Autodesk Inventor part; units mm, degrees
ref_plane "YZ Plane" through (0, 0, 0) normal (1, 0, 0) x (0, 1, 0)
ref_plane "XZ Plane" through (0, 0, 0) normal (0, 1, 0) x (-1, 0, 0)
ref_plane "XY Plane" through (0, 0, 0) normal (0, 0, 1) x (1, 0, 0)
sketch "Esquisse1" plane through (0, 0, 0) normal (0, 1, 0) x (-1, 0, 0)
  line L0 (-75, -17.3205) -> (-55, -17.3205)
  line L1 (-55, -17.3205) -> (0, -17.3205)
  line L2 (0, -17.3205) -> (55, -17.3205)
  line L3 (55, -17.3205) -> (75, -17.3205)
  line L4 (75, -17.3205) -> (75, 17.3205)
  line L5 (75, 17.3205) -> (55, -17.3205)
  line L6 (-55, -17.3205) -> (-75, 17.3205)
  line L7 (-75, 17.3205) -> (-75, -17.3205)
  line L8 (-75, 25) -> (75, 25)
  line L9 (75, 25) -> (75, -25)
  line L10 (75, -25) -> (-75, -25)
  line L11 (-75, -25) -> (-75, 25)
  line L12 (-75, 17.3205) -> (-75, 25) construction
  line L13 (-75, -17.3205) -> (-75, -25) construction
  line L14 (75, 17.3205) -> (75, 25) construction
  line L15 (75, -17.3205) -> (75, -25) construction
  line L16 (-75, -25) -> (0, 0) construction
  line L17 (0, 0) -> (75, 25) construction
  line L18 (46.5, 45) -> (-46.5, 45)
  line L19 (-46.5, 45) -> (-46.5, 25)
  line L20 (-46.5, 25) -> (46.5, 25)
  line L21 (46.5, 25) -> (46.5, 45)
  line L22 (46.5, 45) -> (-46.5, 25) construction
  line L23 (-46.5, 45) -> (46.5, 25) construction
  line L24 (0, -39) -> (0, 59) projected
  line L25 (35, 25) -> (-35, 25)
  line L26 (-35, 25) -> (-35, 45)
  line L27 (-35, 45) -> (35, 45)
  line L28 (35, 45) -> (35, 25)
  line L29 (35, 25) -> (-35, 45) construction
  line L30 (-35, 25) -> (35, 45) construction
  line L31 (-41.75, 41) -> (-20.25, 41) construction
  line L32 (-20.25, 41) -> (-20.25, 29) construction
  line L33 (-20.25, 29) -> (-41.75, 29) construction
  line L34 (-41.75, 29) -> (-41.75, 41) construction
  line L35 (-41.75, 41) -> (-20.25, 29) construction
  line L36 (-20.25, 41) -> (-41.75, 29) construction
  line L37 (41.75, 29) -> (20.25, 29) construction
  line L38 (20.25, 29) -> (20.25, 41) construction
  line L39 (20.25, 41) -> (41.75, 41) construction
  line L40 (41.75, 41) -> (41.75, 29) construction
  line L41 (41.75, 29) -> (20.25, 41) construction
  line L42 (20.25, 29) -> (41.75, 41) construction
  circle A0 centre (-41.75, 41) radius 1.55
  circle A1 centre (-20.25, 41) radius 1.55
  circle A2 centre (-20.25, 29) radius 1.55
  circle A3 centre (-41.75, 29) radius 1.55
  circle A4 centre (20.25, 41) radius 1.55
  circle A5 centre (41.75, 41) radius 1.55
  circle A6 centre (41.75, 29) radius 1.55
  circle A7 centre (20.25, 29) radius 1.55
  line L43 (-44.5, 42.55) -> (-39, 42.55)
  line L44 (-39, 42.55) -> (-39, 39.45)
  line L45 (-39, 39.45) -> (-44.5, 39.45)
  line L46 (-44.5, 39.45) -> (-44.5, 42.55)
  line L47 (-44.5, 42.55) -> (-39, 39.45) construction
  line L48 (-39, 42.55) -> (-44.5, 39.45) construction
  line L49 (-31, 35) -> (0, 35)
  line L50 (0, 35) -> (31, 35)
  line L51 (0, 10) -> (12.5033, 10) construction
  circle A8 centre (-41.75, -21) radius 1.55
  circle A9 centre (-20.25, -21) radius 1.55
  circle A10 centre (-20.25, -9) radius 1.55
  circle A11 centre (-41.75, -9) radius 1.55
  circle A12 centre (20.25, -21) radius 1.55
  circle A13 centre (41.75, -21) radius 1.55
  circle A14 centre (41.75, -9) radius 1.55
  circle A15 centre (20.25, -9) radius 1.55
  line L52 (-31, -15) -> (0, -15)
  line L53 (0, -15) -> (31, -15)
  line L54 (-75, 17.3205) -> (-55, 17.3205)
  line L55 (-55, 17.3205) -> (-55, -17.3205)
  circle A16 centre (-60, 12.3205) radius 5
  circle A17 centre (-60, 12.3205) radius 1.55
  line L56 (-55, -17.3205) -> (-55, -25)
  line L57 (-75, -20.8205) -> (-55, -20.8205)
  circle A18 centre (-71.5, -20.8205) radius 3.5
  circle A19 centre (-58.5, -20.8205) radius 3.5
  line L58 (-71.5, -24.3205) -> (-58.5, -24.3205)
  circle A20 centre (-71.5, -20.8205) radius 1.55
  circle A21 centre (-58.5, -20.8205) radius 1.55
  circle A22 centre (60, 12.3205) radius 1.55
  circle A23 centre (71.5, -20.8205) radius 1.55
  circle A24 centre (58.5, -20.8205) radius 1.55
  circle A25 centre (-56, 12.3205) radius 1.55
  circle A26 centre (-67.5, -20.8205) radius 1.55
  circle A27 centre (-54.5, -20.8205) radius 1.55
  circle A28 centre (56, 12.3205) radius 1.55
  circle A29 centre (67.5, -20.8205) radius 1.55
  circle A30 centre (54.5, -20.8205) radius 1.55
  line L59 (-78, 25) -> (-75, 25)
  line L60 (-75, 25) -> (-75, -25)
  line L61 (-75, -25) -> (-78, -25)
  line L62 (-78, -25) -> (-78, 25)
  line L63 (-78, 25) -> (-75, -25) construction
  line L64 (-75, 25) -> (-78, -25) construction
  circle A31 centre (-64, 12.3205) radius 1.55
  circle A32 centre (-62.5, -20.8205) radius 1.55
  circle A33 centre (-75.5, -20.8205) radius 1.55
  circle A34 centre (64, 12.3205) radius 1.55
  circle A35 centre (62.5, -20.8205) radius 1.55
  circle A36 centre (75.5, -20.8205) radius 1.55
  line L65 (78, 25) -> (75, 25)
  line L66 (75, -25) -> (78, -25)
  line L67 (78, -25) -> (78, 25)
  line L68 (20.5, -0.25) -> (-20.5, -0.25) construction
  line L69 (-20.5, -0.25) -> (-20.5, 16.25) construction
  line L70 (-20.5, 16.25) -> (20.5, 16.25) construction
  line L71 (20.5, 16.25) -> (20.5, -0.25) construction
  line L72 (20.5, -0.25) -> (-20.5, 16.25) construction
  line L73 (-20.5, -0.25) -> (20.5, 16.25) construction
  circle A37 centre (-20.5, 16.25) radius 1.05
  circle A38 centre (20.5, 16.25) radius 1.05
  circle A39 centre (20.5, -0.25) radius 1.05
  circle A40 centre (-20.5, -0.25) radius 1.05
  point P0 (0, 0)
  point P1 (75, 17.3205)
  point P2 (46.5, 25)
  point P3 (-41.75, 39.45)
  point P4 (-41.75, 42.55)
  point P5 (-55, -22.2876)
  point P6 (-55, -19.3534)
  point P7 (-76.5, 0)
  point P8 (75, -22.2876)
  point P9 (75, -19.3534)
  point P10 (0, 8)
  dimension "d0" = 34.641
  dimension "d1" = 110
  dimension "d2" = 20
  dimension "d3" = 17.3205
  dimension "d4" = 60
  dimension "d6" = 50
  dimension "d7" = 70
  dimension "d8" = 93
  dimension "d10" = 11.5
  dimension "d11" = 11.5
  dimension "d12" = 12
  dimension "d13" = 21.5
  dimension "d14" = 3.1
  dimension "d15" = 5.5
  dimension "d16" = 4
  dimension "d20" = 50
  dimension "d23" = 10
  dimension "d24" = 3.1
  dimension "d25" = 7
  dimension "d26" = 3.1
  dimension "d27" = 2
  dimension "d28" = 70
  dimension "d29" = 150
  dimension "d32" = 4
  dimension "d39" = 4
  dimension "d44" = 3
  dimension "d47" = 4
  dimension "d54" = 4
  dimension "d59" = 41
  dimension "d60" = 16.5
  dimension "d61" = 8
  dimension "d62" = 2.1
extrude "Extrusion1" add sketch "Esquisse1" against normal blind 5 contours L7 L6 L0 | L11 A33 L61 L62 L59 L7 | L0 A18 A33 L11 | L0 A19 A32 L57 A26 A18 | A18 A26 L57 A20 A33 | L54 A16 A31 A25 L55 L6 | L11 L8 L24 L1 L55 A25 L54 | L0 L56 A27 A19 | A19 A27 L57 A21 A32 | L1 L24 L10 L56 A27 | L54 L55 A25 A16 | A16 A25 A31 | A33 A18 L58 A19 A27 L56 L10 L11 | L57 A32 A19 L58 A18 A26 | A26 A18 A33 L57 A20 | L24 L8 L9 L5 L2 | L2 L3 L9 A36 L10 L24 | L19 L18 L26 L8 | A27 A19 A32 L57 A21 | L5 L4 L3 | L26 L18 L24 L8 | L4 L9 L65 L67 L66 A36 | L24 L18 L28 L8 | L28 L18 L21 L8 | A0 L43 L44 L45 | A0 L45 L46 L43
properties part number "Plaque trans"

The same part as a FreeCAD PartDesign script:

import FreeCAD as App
import Part
import Sketcher

V = App.Vector
Q = App.Units.Quantity

doc = App.newDocument("Part")
params = doc.addObject("Spreadsheet::Sheet", "Params")
for row, (alias, value) in enumerate([
    ("sketch1_diameter", "3.1 mm"),
    ("sketch1_diameter2", "2.1 mm"),
    ("sketch1_width", "93 mm"),
    ("sketch1_height", "50 mm"),
    ("sketch1_height2", "20 mm"),
    ("pad1_length", "5 mm"),
], start=1):
    params.set(f"A{row}", alias)
    params.set(f"B{row}", "=" + value)
    params.setAlias(f"B{row}", alias)

body = doc.addObject("PartDesign::Body", "Body")

sketch1 = doc.addObject("Sketcher::SketchObject", "Sketch")
body.addObject(sketch1)
sketch1.AttachmentSupport = (doc.XZ_Plane, [""])
sketch1.MapMode = "FlatFace"
sketch1.addGeometry([
    Part.LineSegment(V(78, -25, 0), V(-78, -25, 0)),
    Part.LineSegment(V(-78, -25, 0), V(-78, 25, 0)),
    Part.LineSegment(V(-78, 25, 0), V(-46.5, 25, 0)),
    Part.LineSegment(V(-46.5, 25, 0), V(-46.5, 45, 0)),
    Part.LineSegment(V(-46.5, 45, 0), V(46.5, 45, 0)),
    Part.LineSegment(V(46.5, 45, 0), V(46.5, 25, 0)),
    Part.LineSegment(V(46.5, 25, 0), V(78, 25, 0)),
    Part.LineSegment(V(78, 25, 0), V(78, -25, 0)),
    Part.Circle(V(75.5, -20.8205, 0), V(0, 0, 1), 1.55),
    Part.Circle(V(64, 12.3205, 0), V(0, 0, 1), 1.55),
    Part.Circle(V(56, 12.3205, 0), V(0, 0, 1), 1.55),
    Part.Circle(V(54.5, -20.8205, 0), V(0, 0, 1), 1.55),
    Part.Circle(V(62.5, -20.8205, 0), V(0, 0, 1), 1.55),
    Part.Circle(V(67.5, -20.8205, 0), V(0, 0, 1), 1.55),
    Part.Circle(V(20.5, 16.25, 0), V(0, 0, 1), 1.05),
    Part.Circle(V(20.25, -9, 0), V(0, 0, 1), 1.55),
    Part.Circle(V(20.5, -0.25, 0), V(0, 0, 1), 1.05),
    Part.Circle(V(41.75, -9, 0), V(0, 0, 1), 1.55),
    Part.Circle(V(60, 12.3205, 0), V(0, 0, 1), 1.55),
    Part.Circle(V(58.5, -20.8205, 0), V(0, 0, 1), 1.55),
    Part.Circle(V(20.25, -21, 0), V(0, 0, 1), 1.55),
    Part.Circle(V(41.75, -21, 0), V(0, 0, 1), 1.55),
    Part.Circle(V(71.5, -20.8205, 0), V(0, 0, 1), 1.55),
    Part.Circle(V(41.75, 29, 0), V(0, 0, 1), 1.55),
    Part.Circle(V(20.25, 29, 0), V(0, 0, 1), 1.55),
    Part.Circle(V(20.25, 41, 0), V(0, 0, 1), 1.55),
    Part.Circle(V(-60, 12.3205, 0), V(0, 0, 1), 1.55),
    Part.Circle(V(-64, 12.3205, 0), V(0, 0, 1), 1.55),
    Part.Circle(V(-20.25, -9, 0), V(0, 0, 1), 1.55),
    Part.Circle(V(-41.75, -9, 0), V(0, 0, 1), 1.55),
    Part.Circle(V(-20.5, -0.25, 0), V(0, 0, 1), 1.05),
    Part.Circle(V(-20.5, 16.25, 0), V(0, 0, 1), 1.05),
    Part.Circle(V(-56, 12.3205, 0), V(0, 0, 1), 1.55),
    Part.Circle(V(-67.5, -20.8205, 0), V(0, 0, 1), 1.55),
    Part.Circle(V(-75.5, -20.8205, 0), V(0, 0, 1), 1.55),
    Part.Circle(V(-71.5, -20.8205, 0), V(0, 0, 1), 1.55),
    Part.Circle(V(-20.25, -21, 0), V(0, 0, 1), 1.55),
    Part.Circle(V(-41.75, -21, 0), V(0, 0, 1), 1.55),
    Part.Circle(V(-54.5, -20.8205, 0), V(0, 0, 1), 1.55),
    Part.Circle(V(-58.5, -20.8205, 0), V(0, 0, 1), 1.55),
    Part.Circle(V(-62.5, -20.8205, 0), V(0, 0, 1), 1.55),
    Part.Circle(V(41.75, 41, 0), V(0, 0, 1), 1.55),
    Part.Circle(V(-20.25, 29, 0), V(0, 0, 1), 1.55),
    Part.Circle(V(-20.25, 41, 0), V(0, 0, 1), 1.55),
    Part.Circle(V(-41.75, 29, 0), V(0, 0, 1), 1.55),
    Part.Circle(V(-41.75, 41, 0), V(0, 0, 1), 1.55),
], False)
sketch1.addConstraint([
    Sketcher.Constraint("Coincident", 0, 2, 1, 1),
    Sketcher.Constraint("Coincident", 1, 2, 2, 1),
    Sketcher.Constraint("Coincident", 2, 2, 3, 1),
    Sketcher.Constraint("Coincident", 3, 2, 4, 1),
    Sketcher.Constraint("Coincident", 4, 2, 5, 1),
    Sketcher.Constraint("Coincident", 5, 2, 6, 1),
    Sketcher.Constraint("Coincident", 6, 2, 7, 1),
    Sketcher.Constraint("Coincident", 7, 2, 0, 1),
    Sketcher.Constraint("Horizontal", 0),
    Sketcher.Constraint("Vertical", 1),
    Sketcher.Constraint("Horizontal", 2),
    Sketcher.Constraint("Vertical", 3),
    Sketcher.Constraint("Horizontal", 4),
    Sketcher.Constraint("Vertical", 5),
    Sketcher.Constraint("Horizontal", 6),
    Sketcher.Constraint("Vertical", 7),
    Sketcher.Constraint("Equal", 8, 9),
    Sketcher.Constraint("Equal", 9, 10),
    Sketcher.Constraint("Equal", 10, 11),
    Sketcher.Constraint("Equal", 11, 12),
    Sketcher.Constraint("Equal", 12, 13),
    Sketcher.Constraint("Equal", 13, 15),
    Sketcher.Constraint("Equal", 14, 16),
    Sketcher.Constraint("Equal", 15, 17),
    Sketcher.Constraint("Equal", 17, 18),
    Sketcher.Constraint("Equal", 18, 19),
    Sketcher.Constraint("Equal", 19, 20),
    Sketcher.Constraint("Equal", 20, 21),
    Sketcher.Constraint("Equal", 21, 22),
    Sketcher.Constraint("Equal", 22, 23),
    Sketcher.Constraint("Equal", 23, 24),
    Sketcher.Constraint("Equal", 24, 25),
    Sketcher.Constraint("Equal", 25, 26),
    Sketcher.Constraint("Equal", 26, 27),
    Sketcher.Constraint("Equal", 27, 28),
    Sketcher.Constraint("Equal", 28, 29),
    Sketcher.Constraint("Equal", 16, 30),
    Sketcher.Constraint("Equal", 30, 31),
    Sketcher.Constraint("Equal", 29, 32),
    Sketcher.Constraint("Equal", 32, 33),
    Sketcher.Constraint("Equal", 33, 34),
    Sketcher.Constraint("Equal", 34, 35),
    Sketcher.Constraint("Equal", 35, 36),
    Sketcher.Constraint("Equal", 36, 37),
    Sketcher.Constraint("Equal", 37, 38),
    Sketcher.Constraint("Equal", 38, 39),
    Sketcher.Constraint("Equal", 39, 40),
    Sketcher.Constraint("Equal", 40, 41),
    Sketcher.Constraint("Equal", 41, 42),
    Sketcher.Constraint("Equal", 42, 43),
    Sketcher.Constraint("Equal", 43, 44),
    Sketcher.Constraint("Equal", 44, 45),
    Sketcher.Constraint("Symmetric", 0, 2, 6, 2, -1, 1),
    Sketcher.Constraint("Symmetric", 18, 3, 26, 3, -2),
    Sketcher.Constraint("Symmetric", 9, 3, 27, 3, -2),
    Sketcher.Constraint("Symmetric", 15, 3, 28, 3, -2),
    Sketcher.Constraint("Symmetric", 17, 3, 29, 3, -2),
    Sketcher.Constraint("Symmetric", 16, 3, 30, 3, -2),
    Sketcher.Constraint("Symmetric", 14, 3, 31, 3, -2),
    Sketcher.Constraint("Symmetric", 10, 3, 32, 3, -2),
    Sketcher.Constraint("Symmetric", 13, 3, 33, 3, -2),
    Sketcher.Constraint("Symmetric", 8, 3, 34, 3, -2),
    Sketcher.Constraint("Symmetric", 22, 3, 35, 3, -2),
    Sketcher.Constraint("Symmetric", 20, 3, 36, 3, -2),
    Sketcher.Constraint("Symmetric", 21, 3, 37, 3, -2),
    Sketcher.Constraint("Symmetric", 11, 3, 38, 3, -2),
    Sketcher.Constraint("Symmetric", 19, 3, 39, 3, -2),
    Sketcher.Constraint("Symmetric", 12, 3, 40, 3, -2),
    Sketcher.Constraint("Symmetric", 24, 3, 42, 3, -2),
    Sketcher.Constraint("Symmetric", 25, 3, 43, 3, -2),
    Sketcher.Constraint("Symmetric", 23, 3, 44, 3, -2),
    Sketcher.Constraint("Symmetric", 41, 3, 45, 3, -2),
    Sketcher.Constraint("Symmetric", 2, 2, 5, 2, -2),
    Sketcher.Constraint("Horizontal", 9, 3, 10, 3),
    Sketcher.Constraint("Horizontal", 8, 3, 11, 3),
    Sketcher.Constraint("Horizontal", 11, 3, 12, 3),
    Sketcher.Constraint("Horizontal", 12, 3, 13, 3),
    Sketcher.Constraint("Horizontal", 15, 3, 17, 3),
    Sketcher.Constraint("Horizontal", 10, 3, 18, 3),
    Sketcher.Constraint("Horizontal", 13, 3, 19, 3),
    Sketcher.Constraint("Horizontal", 20, 3, 21, 3),
    Sketcher.Constraint("Horizontal", 19, 3, 22, 3),
    Sketcher.Constraint("Horizontal", 23, 3, 24, 3),
    Sketcher.Constraint("Horizontal", 25, 3, 41, 3),
    Sketcher.Constraint("Vertical", 14, 3, 16, 3),
    Sketcher.Constraint("Vertical", 15, 3, 20, 3),
    Sketcher.Constraint("Vertical", 17, 3, 21, 3),
    Sketcher.Constraint("Vertical", 21, 3, 23, 3),
    Sketcher.Constraint("Vertical", 20, 3, 24, 3),
    Sketcher.Constraint("Vertical", 24, 3, 25, 3),
    Sketcher.Constraint("Vertical", 23, 3, 41, 3),
    Sketcher.Constraint("Diameter", 8, Q("3.1 mm")),
    Sketcher.Constraint("Diameter", 14, Q("2.1 mm")),
    Sketcher.Constraint("DistanceX", 4, 1, 4, 2, Q("93 mm")),
    Sketcher.Constraint("DistanceY", 1, 1, 1, 2, Q("50 mm")),
    Sketcher.Constraint("DistanceY", 3, 1, 3, 2, Q("20 mm")),
    Sketcher.Constraint("DistanceX", -1, 1, 18, 3, Q("60 mm")),
    Sketcher.Constraint("DistanceY", -1, 1, 25, 3, Q("41 mm")),
    Sketcher.Constraint("DistanceX", 10, 3, 9, 3, Q("8 mm")),
    Sketcher.Constraint("DistanceX", 11, 3, 12, 3, Q("8 mm")),
    Sketcher.Constraint("DistanceX", 13, 3, 8, 3, Q("8 mm")),
    Sketcher.Constraint("DistanceX", 18, 3, 9, 3, Q("4 mm")),
    Sketcher.Constraint("DistanceX", 11, 3, 19, 3, Q("4 mm")),
    Sketcher.Constraint("DistanceY", 20, 3, 15, 3, Q("12 mm")),
    Sketcher.Constraint("DistanceX", 22, 3, 8, 3, Q("4 mm")),
    Sketcher.Constraint("DistanceY", 24, 3, 25, 3, Q("12 mm")),
    Sketcher.Constraint("DistanceX", 30, 3, 16, 3, Q("41 mm")),
    Sketcher.Constraint("DistanceX", 9, 3, 8, 3, Q("11.5 mm")),
    Sketcher.Constraint("DistanceY", 16, 3, 14, 3, Q("16.5 mm")),
    Sketcher.Constraint("DistanceX", 15, 3, 17, 3, Q("21.5 mm")),
    Sketcher.Constraint("DistanceX", 11, 3, 18, 3, Q("5.5 mm")),
    Sketcher.Constraint("DistanceX", 0, 2, 0, 1, Q("156 mm")),
    Sketcher.Constraint("DistanceY", 15, 3, -1, 1, Q("9 mm")),
    Sketcher.Constraint("DistanceX", 29, 3, 15, 3, Q("62 mm")),
    Sketcher.Constraint("DistanceY", -1, 1, 14, 3, Q("16.25 mm")),
    Sketcher.Constraint("DistanceY", 8, 3, 9, 3, Q("33.141 mm")),
    Sketcher.Constraint("DistanceY", 8, 3, -1, 1, Q("20.8205 mm")),
])
sketch1.setExpression("Constraints[91]", "Params.sketch1_diameter")
sketch1.setExpression("Constraints[92]", "Params.sketch1_diameter2")
sketch1.setExpression("Constraints[93]", "Params.sketch1_width")
sketch1.setExpression("Constraints[94]", "Params.sketch1_height")
sketch1.setExpression("Constraints[95]", "Params.sketch1_height2")
pad1 = doc.addObject("PartDesign::Pad", "Pad")
body.addObject(pad1)
pad1.Profile = sketch1
pad1.setExpression("Length", "Params.pad1_length")

doc.recompute()
